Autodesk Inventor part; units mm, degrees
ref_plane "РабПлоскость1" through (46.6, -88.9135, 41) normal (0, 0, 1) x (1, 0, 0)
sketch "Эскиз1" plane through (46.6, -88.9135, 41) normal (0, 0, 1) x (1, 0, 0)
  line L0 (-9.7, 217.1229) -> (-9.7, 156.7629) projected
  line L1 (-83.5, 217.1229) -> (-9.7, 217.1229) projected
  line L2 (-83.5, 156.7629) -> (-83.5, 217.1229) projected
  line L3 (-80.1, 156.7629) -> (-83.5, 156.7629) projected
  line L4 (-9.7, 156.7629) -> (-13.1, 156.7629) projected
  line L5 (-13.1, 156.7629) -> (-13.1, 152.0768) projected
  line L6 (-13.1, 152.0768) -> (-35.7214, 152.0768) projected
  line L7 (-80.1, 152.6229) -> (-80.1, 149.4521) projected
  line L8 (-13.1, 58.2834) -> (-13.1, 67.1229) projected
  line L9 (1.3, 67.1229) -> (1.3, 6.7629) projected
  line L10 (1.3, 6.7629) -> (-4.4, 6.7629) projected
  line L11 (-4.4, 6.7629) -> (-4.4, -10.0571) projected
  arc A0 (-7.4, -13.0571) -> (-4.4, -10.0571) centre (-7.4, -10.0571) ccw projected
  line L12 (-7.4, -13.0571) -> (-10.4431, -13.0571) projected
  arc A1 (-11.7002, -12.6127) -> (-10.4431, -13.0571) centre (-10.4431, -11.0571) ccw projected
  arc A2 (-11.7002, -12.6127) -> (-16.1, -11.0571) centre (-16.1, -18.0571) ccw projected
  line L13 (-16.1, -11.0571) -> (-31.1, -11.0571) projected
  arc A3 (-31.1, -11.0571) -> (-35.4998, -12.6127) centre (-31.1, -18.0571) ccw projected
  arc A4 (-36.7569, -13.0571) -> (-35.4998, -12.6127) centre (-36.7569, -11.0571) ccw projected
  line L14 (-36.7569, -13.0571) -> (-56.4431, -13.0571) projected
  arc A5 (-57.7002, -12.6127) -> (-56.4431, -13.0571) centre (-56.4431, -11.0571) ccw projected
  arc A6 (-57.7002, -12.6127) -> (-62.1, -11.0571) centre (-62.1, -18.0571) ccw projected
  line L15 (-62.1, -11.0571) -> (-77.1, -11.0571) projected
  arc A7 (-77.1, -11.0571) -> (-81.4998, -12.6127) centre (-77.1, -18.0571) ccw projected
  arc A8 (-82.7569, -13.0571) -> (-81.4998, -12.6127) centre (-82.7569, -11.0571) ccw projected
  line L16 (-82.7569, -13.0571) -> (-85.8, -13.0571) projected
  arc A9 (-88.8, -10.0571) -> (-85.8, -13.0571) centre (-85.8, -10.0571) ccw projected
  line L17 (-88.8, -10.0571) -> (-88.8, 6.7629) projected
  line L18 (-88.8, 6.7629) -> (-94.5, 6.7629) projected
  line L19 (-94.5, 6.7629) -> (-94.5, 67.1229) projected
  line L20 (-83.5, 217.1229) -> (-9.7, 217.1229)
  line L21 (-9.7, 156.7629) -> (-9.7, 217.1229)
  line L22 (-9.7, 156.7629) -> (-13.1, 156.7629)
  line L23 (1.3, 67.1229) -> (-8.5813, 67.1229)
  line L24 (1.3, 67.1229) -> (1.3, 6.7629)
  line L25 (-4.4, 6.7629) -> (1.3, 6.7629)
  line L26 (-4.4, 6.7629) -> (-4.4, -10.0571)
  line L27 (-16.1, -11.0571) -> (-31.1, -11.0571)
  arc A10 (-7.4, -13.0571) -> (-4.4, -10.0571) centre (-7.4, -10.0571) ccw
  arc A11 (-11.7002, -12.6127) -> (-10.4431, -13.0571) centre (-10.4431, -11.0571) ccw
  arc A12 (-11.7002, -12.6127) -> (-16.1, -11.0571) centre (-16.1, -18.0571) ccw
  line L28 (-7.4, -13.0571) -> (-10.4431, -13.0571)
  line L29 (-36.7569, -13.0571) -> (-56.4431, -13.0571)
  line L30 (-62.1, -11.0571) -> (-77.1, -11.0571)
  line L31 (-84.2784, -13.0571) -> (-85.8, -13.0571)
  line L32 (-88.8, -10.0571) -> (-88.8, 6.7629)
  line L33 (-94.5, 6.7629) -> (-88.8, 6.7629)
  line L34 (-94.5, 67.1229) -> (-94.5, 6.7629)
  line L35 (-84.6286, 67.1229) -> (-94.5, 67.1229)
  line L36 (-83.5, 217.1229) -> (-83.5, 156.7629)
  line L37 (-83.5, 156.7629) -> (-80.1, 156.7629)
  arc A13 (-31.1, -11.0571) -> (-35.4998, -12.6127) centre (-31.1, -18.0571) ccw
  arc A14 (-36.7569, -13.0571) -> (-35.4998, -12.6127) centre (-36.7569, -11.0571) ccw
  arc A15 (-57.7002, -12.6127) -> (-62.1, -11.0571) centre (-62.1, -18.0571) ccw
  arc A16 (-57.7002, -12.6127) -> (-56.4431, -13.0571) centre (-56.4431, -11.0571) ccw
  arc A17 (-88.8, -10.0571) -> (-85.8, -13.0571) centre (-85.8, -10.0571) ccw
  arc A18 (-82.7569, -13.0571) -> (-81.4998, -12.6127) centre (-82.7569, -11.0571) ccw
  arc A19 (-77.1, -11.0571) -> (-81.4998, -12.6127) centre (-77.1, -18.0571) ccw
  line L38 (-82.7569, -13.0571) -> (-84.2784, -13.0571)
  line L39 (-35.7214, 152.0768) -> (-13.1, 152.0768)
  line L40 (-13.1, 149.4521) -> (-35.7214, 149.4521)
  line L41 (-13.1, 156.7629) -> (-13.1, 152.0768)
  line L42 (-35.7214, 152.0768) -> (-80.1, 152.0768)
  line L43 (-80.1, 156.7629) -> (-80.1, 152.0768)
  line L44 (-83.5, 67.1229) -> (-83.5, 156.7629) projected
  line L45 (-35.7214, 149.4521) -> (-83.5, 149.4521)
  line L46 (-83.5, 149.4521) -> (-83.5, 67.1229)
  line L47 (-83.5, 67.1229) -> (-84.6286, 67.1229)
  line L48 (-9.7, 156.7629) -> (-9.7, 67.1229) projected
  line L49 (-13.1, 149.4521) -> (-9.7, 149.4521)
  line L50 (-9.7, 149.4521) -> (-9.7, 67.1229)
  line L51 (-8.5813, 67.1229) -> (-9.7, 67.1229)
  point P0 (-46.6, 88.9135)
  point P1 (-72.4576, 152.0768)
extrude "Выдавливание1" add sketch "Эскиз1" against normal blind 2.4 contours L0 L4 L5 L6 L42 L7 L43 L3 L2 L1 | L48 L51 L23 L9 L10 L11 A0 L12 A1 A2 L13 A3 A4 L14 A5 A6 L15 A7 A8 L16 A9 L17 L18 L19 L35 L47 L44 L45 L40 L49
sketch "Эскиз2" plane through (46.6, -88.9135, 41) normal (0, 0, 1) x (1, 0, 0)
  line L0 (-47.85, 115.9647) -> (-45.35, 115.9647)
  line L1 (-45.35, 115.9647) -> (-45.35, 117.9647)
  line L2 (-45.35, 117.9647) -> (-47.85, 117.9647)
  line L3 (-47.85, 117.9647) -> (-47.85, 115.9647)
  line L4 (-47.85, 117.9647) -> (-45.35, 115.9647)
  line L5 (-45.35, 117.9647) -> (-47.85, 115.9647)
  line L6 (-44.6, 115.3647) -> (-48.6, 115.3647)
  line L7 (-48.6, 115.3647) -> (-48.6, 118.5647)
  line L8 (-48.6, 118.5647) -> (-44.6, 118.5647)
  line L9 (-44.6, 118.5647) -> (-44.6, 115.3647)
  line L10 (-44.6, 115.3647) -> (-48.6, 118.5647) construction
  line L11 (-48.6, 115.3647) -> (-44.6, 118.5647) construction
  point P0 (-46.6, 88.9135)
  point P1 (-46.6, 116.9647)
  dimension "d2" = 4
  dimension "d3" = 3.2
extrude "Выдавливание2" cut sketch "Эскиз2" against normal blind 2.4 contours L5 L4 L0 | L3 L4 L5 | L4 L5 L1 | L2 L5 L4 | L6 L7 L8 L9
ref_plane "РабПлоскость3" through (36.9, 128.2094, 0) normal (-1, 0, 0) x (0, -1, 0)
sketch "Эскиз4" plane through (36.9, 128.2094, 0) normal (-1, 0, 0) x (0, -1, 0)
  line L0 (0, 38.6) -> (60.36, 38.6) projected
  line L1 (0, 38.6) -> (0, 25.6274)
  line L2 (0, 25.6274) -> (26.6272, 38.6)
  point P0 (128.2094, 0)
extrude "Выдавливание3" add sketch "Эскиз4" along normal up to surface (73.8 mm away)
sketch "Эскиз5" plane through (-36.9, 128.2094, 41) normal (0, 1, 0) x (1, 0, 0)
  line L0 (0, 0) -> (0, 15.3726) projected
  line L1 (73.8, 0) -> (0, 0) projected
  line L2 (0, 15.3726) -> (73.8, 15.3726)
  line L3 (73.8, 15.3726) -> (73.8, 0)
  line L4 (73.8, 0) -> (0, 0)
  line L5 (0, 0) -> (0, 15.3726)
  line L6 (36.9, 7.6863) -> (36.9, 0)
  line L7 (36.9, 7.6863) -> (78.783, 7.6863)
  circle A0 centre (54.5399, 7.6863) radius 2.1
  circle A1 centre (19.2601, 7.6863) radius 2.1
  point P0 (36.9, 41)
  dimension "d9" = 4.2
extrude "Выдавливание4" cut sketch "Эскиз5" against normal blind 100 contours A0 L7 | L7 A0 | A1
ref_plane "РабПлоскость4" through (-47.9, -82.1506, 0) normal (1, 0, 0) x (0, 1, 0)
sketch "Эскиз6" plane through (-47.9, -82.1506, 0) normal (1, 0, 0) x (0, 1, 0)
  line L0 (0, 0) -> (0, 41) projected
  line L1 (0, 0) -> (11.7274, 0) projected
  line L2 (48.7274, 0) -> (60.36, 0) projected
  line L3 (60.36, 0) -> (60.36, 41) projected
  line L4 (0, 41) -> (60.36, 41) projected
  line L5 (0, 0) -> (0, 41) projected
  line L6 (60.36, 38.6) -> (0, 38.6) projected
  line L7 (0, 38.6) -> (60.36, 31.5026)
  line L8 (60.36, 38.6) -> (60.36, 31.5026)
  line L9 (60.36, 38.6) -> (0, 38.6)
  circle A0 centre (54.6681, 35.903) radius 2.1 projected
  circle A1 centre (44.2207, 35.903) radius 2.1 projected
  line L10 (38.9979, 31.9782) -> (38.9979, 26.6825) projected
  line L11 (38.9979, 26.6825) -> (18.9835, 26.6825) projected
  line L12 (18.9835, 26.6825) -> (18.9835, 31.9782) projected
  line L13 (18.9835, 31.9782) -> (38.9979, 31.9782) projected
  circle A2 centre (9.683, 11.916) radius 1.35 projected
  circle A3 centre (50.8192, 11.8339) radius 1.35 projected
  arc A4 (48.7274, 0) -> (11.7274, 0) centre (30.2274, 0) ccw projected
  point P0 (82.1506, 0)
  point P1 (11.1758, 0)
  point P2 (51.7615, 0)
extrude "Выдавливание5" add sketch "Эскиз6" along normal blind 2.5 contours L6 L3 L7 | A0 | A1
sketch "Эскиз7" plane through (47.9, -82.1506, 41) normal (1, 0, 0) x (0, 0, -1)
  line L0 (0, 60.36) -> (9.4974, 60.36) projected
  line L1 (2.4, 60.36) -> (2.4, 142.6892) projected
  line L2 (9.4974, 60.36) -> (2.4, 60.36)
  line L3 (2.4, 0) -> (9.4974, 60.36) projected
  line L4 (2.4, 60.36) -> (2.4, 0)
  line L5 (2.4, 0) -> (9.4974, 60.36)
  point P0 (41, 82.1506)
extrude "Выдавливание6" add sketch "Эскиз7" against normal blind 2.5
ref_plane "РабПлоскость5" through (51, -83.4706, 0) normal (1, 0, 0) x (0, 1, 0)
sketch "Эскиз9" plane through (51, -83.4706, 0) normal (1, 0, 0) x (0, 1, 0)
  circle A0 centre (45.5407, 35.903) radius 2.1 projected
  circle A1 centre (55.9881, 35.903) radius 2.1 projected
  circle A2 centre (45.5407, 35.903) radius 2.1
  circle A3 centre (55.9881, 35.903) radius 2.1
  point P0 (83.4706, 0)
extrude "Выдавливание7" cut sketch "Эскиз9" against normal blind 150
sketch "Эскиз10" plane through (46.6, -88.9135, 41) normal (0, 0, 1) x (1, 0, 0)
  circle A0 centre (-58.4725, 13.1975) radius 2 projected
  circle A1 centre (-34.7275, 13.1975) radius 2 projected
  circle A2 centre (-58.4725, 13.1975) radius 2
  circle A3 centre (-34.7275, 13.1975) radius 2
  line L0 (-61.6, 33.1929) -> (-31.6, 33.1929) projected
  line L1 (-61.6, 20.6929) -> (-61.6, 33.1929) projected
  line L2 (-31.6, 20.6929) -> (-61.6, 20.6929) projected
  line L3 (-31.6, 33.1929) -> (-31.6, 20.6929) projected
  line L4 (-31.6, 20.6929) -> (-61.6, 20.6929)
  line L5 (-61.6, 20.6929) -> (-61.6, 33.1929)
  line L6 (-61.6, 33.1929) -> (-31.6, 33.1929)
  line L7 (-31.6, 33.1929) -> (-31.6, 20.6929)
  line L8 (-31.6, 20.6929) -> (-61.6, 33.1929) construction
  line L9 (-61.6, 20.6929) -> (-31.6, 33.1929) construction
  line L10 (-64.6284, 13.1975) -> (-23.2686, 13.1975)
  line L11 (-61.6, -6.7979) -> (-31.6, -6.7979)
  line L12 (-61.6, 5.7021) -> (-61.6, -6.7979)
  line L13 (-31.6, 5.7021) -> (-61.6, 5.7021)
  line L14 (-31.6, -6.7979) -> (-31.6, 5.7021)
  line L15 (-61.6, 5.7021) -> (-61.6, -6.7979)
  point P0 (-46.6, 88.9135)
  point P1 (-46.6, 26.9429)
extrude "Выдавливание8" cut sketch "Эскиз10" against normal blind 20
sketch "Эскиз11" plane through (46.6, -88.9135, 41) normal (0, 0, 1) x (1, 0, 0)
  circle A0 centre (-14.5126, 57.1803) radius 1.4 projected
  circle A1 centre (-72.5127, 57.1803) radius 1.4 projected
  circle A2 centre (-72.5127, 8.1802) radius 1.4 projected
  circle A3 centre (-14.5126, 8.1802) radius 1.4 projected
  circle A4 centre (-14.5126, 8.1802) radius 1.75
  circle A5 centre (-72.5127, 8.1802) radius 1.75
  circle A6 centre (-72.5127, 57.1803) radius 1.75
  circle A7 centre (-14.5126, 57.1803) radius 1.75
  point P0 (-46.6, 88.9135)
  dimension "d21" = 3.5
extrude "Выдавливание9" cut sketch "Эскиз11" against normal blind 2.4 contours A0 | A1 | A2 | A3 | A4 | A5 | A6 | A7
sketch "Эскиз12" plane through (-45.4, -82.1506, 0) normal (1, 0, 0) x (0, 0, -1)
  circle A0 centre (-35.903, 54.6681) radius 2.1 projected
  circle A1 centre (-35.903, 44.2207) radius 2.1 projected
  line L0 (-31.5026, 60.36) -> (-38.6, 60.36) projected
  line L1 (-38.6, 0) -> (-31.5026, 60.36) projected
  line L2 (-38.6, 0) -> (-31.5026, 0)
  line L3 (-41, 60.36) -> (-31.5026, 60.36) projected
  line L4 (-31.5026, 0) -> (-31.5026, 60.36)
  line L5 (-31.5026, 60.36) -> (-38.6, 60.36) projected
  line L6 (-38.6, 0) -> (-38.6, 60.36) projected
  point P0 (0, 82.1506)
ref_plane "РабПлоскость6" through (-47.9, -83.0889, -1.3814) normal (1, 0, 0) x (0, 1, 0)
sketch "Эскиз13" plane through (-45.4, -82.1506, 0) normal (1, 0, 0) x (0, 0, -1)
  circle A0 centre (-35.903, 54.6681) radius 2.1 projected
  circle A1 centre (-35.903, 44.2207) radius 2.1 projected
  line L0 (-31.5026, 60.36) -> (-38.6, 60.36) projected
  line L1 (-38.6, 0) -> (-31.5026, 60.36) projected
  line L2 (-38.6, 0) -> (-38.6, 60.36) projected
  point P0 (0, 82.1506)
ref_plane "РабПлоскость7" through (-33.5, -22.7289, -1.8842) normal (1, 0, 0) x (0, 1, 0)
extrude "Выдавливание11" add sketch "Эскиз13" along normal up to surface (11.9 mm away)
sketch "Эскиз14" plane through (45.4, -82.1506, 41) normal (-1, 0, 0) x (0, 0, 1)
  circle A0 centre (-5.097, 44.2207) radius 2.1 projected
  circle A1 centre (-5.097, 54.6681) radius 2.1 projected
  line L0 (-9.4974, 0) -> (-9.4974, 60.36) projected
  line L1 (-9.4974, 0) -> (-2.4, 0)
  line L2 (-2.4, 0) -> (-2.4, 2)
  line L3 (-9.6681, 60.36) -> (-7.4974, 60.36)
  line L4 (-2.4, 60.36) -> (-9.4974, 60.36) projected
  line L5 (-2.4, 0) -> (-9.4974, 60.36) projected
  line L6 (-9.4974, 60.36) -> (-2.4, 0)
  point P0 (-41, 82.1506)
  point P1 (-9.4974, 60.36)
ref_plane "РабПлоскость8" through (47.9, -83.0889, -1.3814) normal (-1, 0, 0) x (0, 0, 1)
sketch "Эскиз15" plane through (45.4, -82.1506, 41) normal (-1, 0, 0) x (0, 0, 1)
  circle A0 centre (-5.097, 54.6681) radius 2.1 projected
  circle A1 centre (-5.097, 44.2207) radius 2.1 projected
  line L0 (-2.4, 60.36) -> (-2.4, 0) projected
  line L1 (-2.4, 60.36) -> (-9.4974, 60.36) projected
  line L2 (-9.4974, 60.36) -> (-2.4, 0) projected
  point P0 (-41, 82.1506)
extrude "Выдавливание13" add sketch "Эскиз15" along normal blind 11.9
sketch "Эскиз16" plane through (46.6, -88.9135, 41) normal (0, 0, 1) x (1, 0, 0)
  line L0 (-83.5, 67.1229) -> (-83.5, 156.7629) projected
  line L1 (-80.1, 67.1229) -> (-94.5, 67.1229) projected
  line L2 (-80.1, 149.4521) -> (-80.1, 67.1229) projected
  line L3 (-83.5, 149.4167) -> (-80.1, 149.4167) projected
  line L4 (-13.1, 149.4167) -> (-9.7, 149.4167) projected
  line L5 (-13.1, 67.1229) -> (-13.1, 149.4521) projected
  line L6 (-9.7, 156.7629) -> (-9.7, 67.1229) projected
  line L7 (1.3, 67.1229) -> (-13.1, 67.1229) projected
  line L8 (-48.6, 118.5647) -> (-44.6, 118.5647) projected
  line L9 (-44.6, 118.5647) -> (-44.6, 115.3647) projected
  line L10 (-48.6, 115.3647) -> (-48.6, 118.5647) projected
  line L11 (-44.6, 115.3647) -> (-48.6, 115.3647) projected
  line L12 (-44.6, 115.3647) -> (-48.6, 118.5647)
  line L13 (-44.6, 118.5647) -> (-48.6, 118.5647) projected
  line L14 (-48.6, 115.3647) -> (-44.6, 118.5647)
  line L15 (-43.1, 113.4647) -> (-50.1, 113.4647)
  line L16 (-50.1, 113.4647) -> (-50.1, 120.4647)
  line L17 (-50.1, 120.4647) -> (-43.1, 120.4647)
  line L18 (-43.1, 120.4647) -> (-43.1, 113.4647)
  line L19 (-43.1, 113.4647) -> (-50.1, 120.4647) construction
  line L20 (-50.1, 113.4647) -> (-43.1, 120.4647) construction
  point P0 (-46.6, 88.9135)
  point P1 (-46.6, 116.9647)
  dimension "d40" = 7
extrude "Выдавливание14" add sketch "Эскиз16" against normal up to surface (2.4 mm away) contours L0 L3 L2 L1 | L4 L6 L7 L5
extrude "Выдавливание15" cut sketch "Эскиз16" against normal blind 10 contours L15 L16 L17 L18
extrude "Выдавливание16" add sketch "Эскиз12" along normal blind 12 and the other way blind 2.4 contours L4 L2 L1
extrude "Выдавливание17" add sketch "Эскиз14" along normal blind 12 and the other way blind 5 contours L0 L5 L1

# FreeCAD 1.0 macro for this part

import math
import FreeCAD as App
import Part
import Sketcher
Q = App.Units.Quantity

doc = App.newDocument("Part")
body = doc.addObject("PartDesign::Body", "Body")
body.AllowCompound = True

sketch1 = doc.addObject("Sketcher::SketchObject", "Sketch")
body.addObject(sketch1)
sketch1.AttachmentSupport = (doc.XY_Plane, [""])
sketch1.MapMode = "FlatFace"
sketch1.AttachmentOffset = App.Placement(App.Vector(0, 0, 41), App.Rotation())
sketch1.addGeometry([
    Part.LineSegment(App.Vector(36.9, 67.8, 0), App.Vector(36.9, 128.2, 0)),
    Part.LineSegment(App.Vector(36.9, 128.2, 0), App.Vector(-36.9, 128.2, 0)),
    Part.LineSegment(App.Vector(-36.9, 128.2, 0), App.Vector(-36.9, 67.8, 0)),
    Part.LineSegment(App.Vector(-36.9, 67.8, 0), App.Vector(-33.5, 67.8, 0)),
    Part.LineSegment(App.Vector(-33.5, 67.8, 0), App.Vector(-33.5, 63.2, 0)),
    Part.LineSegment(App.Vector(-33.5, 63.2, 0), App.Vector(33.5, 63.2, 0)),
    Part.LineSegment(App.Vector(33.5, 63.2, 0), App.Vector(33.5, 67.8, 0)),
    Part.LineSegment(App.Vector(33.5, 67.8, 0), App.Vector(36.9, 67.8, 0)),
    Part.LineSegment(App.Vector(36.9, -21.8, 0), App.Vector(36.9, 60.5, 0)),
    Part.LineSegment(App.Vector(36.9, 60.5, 0), App.Vector(-36.9, 60.5, 0)),
    Part.LineSegment(App.Vector(-36.9, 60.5, 0), App.Vector(-36.9, -21.8, 0)),
    Part.LineSegment(App.Vector(-36.9, -21.8, 0), App.Vector(-47.9, -21.8, 0)),
    Part.LineSegment(App.Vector(-47.9, -21.8, 0), App.Vector(-47.9, -82.2, 0)),
    Part.LineSegment(App.Vector(-47.9, -82.2, 0), App.Vector(-42.2, -82.2, 0)),
    Part.LineSegment(App.Vector(-42.2, -82.2, 0), App.Vector(-42.2, -99, 0)),
    Part.ArcOfCircle(Part.Circle(App.Vector(-39.2, -99, 0), App.Vector(0, 0, 1), 3), math.radians(180), math.radians(270)),
    Part.LineSegment(App.Vector(-39.2, -102, 0), App.Vector(-36.2, -102, 0)),
    Part.ArcOfCircle(Part.Circle(App.Vector(-36.2, -100, 0), App.Vector(0, 0, 1), 2), math.radians(-90), math.radians(-51)),
    Part.ArcOfCircle(Part.Circle(App.Vector(-30.5, -107, 0), App.Vector(0, 0, 1), 7), math.radians(90), math.radians(129)),
    Part.LineSegment(App.Vector(-30.5, -100, 0), App.Vector(-15.5, -100, 0)),
    Part.ArcOfCircle(Part.Circle(App.Vector(-15.5, -107, 0), App.Vector(0, 0, 1), 7), math.radians(51), math.radians(90)),
    Part.ArcOfCircle(Part.Circle(App.Vector(-9.8, -100, 0), App.Vector(0, 0, 1), 2), math.radians(-129), math.radians(-90)),
    Part.LineSegment(App.Vector(-9.8, -102, 0), App.Vector(9.8, -102, 0)),
    Part.ArcOfCircle(Part.Circle(App.Vector(9.8, -100, 0), App.Vector(0, 0, 1), 2), math.radians(-90), math.radians(-51)),
    Part.ArcOfCircle(Part.Circle(App.Vector(15.5, -107, 0), App.Vector(0, 0, 1), 7), math.radians(90), math.radians(129)),
    Part.LineSegment(App.Vector(15.5, -100, 0), App.Vector(30.5, -100, 0)),
    Part.ArcOfCircle(Part.Circle(App.Vector(30.5, -107, 0), App.Vector(0, 0, 1), 7), math.radians(51), math.radians(90)),
    Part.ArcOfCircle(Part.Circle(App.Vector(36.2, -100, 0), App.Vector(0, 0, 1), 2), math.radians(-129), math.radians(-90)),
    Part.LineSegment(App.Vector(36.2, -102, 0), App.Vector(39.2, -102, 0)),
    Part.ArcOfCircle(Part.Circle(App.Vector(39.2, -99, 0), App.Vector(0, 0, 1), 3), math.radians(-90), math.radians(0)),
    Part.LineSegment(App.Vector(42.2, -99, 0), App.Vector(42.2, -82.2, 0)),
    Part.LineSegment(App.Vector(42.2, -82.2, 0), App.Vector(47.9, -82.2, 0)),
    Part.LineSegment(App.Vector(47.9, -82.2, 0), App.Vector(47.9, -21.8, 0)),
    Part.LineSegment(App.Vector(47.9, -21.8, 0), App.Vector(36.9, -21.8, 0)),
], False)
sketch1.addConstraint([
    Sketcher.Constraint("Coincident", 0, 2, 1, 1),
    Sketcher.Constraint("Coincident", 1, 2, 2, 1),
    Sketcher.Constraint("Coincident", 2, 2, 3, 1),
    Sketcher.Constraint("Coincident", 3, 2, 4, 1),
    Sketcher.Constraint("Coincident", 4, 2, 5, 1),
    Sketcher.Constraint("Coincident", 5, 2, 6, 1),
    Sketcher.Constraint("Coincident", 6, 2, 7, 1),
    Sketcher.Constraint("Coincident", 7, 2, 0, 1),
    Sketcher.Constraint("Coincident", 8, 2, 9, 1),
    Sketcher.Constraint("Coincident", 9, 2, 10, 1),
    Sketcher.Constraint("Coincident", 10, 2, 11, 1),
    Sketcher.Constraint("Coincident", 11, 2, 12, 1),
    Sketcher.Constraint("Coincident", 12, 2, 13, 1),
    Sketcher.Constraint("Coincident", 13, 2, 14, 1),
    Sketcher.Constraint("Tangent", 14, 2, 15, 1),
    Sketcher.Constraint("Tangent", 15, 2, 16, 1),
    Sketcher.Constraint("Tangent", 16, 2, 17, 1),
    Sketcher.Constraint("Tangent", 17, 2, 18, 2),
    Sketcher.Constraint("Tangent", 18, 1, 19, 1),
    Sketcher.Constraint("Tangent", 19, 2, 20, 2),
    Sketcher.Constraint("Tangent", 20, 1, 21, 1),
    Sketcher.Constraint("Tangent", 21, 2, 22, 1),
    Sketcher.Constraint("Tangent", 22, 2, 23, 1),
    Sketcher.Constraint("Tangent", 23, 2, 24, 2),
    Sketcher.Constraint("Tangent", 24, 1, 25, 1),
    Sketcher.Constraint("Tangent", 25, 2, 26, 2),
    Sketcher.Constraint("Tangent", 26, 1, 27, 1),
    Sketcher.Constraint("Tangent", 27, 2, 28, 1),
    Sketcher.Constraint("Tangent", 28, 2, 29, 1),
    Sketcher.Constraint("Tangent", 29, 2, 30, 1),
    Sketcher.Constraint("Coincident", 30, 2, 31, 1),
    Sketcher.Constraint("Coincident", 31, 2, 32, 1),
    Sketcher.Constraint("Coincident", 32, 2, 33, 1),
    Sketcher.Constraint("Coincident", 33, 2, 8, 1),
    Sketcher.Constraint("Vertical", 0),
    Sketcher.Constraint("Horizontal", 1),
    Sketcher.Constraint("Vertical", 2),
    Sketcher.Constraint("Horizontal", 3),
    Sketcher.Constraint("Vertical", 4),
    Sketcher.Constraint("Horizontal", 5),
    Sketcher.Constraint("Vertical", 6),
    Sketcher.Constraint("Horizontal", 7),
    Sketcher.Constraint("Vertical", 8),
    Sketcher.Constraint("Horizontal", 9),
    Sketcher.Constraint("Vertical", 10),
    Sketcher.Constraint("Horizontal", 11),
    Sketcher.Constraint("Vertical", 12),
    Sketcher.Constraint("Horizontal", 13),
    Sketcher.Constraint("Vertical", 14),
    Sketcher.Constraint("Horizontal", 16),
    Sketcher.Constraint("Horizontal", 19),
    Sketcher.Constraint("Horizontal", 22),
    Sketcher.Constraint("Horizontal", 25),
    Sketcher.Constraint("Horizontal", 28),
    Sketcher.Constraint("Vertical", 30),
    Sketcher.Constraint("Horizontal", 31),
    Sketcher.Constraint("Vertical", 32),
    Sketcher.Constraint("Horizontal", 33),
    Sketcher.Constraint("Equal", 18, 20),
    Sketcher.Constraint("Equal", 17, 21),
    Sketcher.Constraint("Equal", 21, 23),
    Sketcher.Constraint("Equal", 20, 24),
    Sketcher.Constraint("Equal", 24, 26),
    Sketcher.Constraint("Equal", 23, 27),
    Sketcher.Constraint("Equal", 15, 29),
    Sketcher.Constraint("Symmetric", 20, 3, 24, 3, -2),
    Sketcher.Constraint("Symmetric", 17, 3, 27, 3, -2),
    Sketcher.Constraint("Symmetric", 3, 2, 6, 2, -2),
    Sketcher.Constraint("Symmetric", 13, 2, 30, 2, -2),
    Sketcher.Constraint("Symmetric", 11, 2, 32, 2, -2),
    Sketcher.Constraint("Horizontal", 17, 3, 21, 3),
    Sketcher.Constraint("Horizontal", 27, 3, 18, 1),
    Sketcher.Constraint("Vertical", 7, 2, 8, 2),
    Sketcher.Constraint("Vertical", 2, 2, 9, 2),
    Sketcher.Constraint("Equal", 3, 7),
    Sketcher.Constraint("Equal", 2, 12),
    Sketcher.Constraint("Radius", 15, Q("3 mm")),
    Sketcher.Constraint("Radius", 17, Q("2 mm")),
    Sketcher.Constraint("Radius", 18, Q("7 mm")),
    Sketcher.Constraint("DistanceX", 5, 1, 5, 2, Q("67 mm")),
    Sketcher.Constraint("DistanceX", 11, 2, 11, 1, Q("11 mm")),
    Sketcher.Constraint("DistanceX", 19, 1, 19, 2, Q("15 mm")),
    Sketcher.Constraint("DistanceX", 1, 2, 1, 1, Q("73.8 mm")),
    Sketcher.Constraint("DistanceX", 13, 1, 13, 2, Q("5.7 mm")),
    Sketcher.Constraint("DistanceX", 17, 3, 23, 3, Q("46 mm")),
    Sketcher.Constraint("DistanceY", 0, 1, 0, 2, Q("60.36 mm")),
    Sketcher.Constraint("DistanceY", 14, 2, 14, 1, Q("16.82 mm")),
    Sketcher.Constraint("DistanceY", 4, 2, 4, 1, Q("4.686 mm")),
    Sketcher.Constraint("DistanceY", 29, 3, 0, 2, Q("227.18 mm")),
    Sketcher.Constraint("DistanceY", 8, 1, 8, 2, Q("82.3292 mm")),
    Sketcher.Constraint("DistanceY", 15, 3, -1, 1, Q("98.9706 mm")),
])
pad1 = doc.addObject("PartDesign::Pad", "Pad")
body.addObject(pad1)
pad1.Profile = sketch1
pad1.Length = 2.4
pad1.Reversed = True

sketch2 = doc.addObject("Sketcher::SketchObject", "Sketch001")
body.addObject(sketch2)
sketch2.AttachmentSupport = (doc.XY_Plane, [""])
sketch2.MapMode = "FlatFace"
sketch2.AttachmentOffset = App.Placement(App.Vector(0, 0, 41), App.Rotation())
sketch2.addGeometry([
    Part.LineSegment(App.Vector(-2, 26.5, 0), App.Vector(2, 26.5, 0)),
    Part.LineSegment(App.Vector(2, 26.5, 0), App.Vector(2, 29.7, 0)),
    Part.LineSegment(App.Vector(2, 29.7, 0), App.Vector(-2, 29.7, 0)),
    Part.LineSegment(App.Vector(-2, 29.7, 0), App.Vector(-2, 26.5, 0)),
], False)
sketch2.addConstraint([
    Sketcher.Constraint("Coincident", 0, 2, 1, 1),
    Sketcher.Constraint("Coincident", 1, 2, 2, 1),
    Sketcher.Constraint("Coincident", 2, 2, 3, 1),
    Sketcher.Constraint("Coincident", 3, 2, 0, 1),
    Sketcher.Constraint("Horizontal", 0),
    Sketcher.Constraint("Vertical", 1),
    Sketcher.Constraint("Horizontal", 2),
    Sketcher.Constraint("Vertical", 3),
    Sketcher.Constraint("DistanceX", 0, 1, 0, 2, Q("4 mm")),
    Sketcher.Constraint("DistanceY", 1, 1, 1, 2, Q("3.2 mm")),
    Sketcher.Constraint("DistanceX", -1, 1, 0, 2, Q("2 mm")),
    Sketcher.Constraint("DistanceY", -1, 1, 0, 2, Q("26.4512 mm")),
])
pocket1 = doc.addObject("PartDesign::Pocket", "Pocket")
body.addObject(pocket1)
pocket1.Profile = sketch2
pocket1.Length = 2.4

sketch3 = doc.addObject("Sketcher::SketchObject", "Sketch002")
body.addObject(sketch3)
sketch3.AttachmentSupport = (doc.YZ_Plane, [""])
sketch3.MapMode = "FlatFace"
sketch3.AttachmentOffset = App.Placement(App.Vector(0, 0, 36.9), App.Rotation())
sketch3.addGeometry([
    Part.LineSegment(App.Vector(102, 39, 0), App.Vector(128, 39, 0)),
    Part.LineSegment(App.Vector(128, 39, 0), App.Vector(128, 26, 0)),
    Part.LineSegment(App.Vector(128, 26, 0), App.Vector(102, 39, 0)),
], False)
sketch3.addConstraint([
    Sketcher.Constraint("Coincident", 0, 2, 1, 1),
    Sketcher.Constraint("Coincident", 1, 2, 2, 1),
    Sketcher.Constraint("Coincident", 2, 2, 0, 1),
    Sketcher.Constraint("Horizontal", 0),
    Sketcher.Constraint("Vertical", 1),
    Sketcher.Constraint("DistanceY", -1, 1, 0, 2, Q("38.6 mm")),
    Sketcher.Constraint("DistanceX", 0, 1, 0, 2, Q("26.6272 mm")),
    Sketcher.Constraint("DistanceY", 1, 2, 1, 1, Q("12.9726 mm")),
    Sketcher.Constraint("DistanceX", -1, 1, 0, 2, Q("128.2094 mm")),
])
pad2 = doc.addObject("PartDesign::Pad", "Pad001")
body.addObject(pad2)
pad2.Profile = sketch3
pad2.Length = 73.8
pad2.Reversed = True

sketch4 = doc.addObject("Sketcher::SketchObject", "Sketch003")
body.addObject(sketch4)
sketch4.AttachmentSupport = (doc.XZ_Plane, [""])
sketch4.MapMode = "FlatFace"
sketch4.AttachmentOffset = App.Placement(App.Vector(0, 0, -128.2094), App.Rotation())
sketch4.addGeometry([
    Part.Circle(App.Vector(17.6, 33.3, 0), App.Vector(0, 0, 1), 2.1),
    Part.Circle(App.Vector(-17.6, 33.3, 0), App.Vector(0, 0, 1), 2.1),
], False)
sketch4.addConstraint([
    Sketcher.Constraint("Equal", 0, 1),
    Sketcher.Constraint("Symmetric", 0, 3, 1, 3, -2),
    Sketcher.Constraint("Diameter", 0, Q("4.2 mm")),
    Sketcher.Constraint("DistanceX", -1, 1, 0, 3, Q("17.64 mm")),
    Sketcher.Constraint("DistanceY", -1, 1, 0, 3, Q("33.3137 mm")),
])
pocket2 = doc.addObject("PartDesign::Pocket", "Pocket001")
body.addObject(pocket2)
pocket2.Profile = sketch4
pocket2.Length = 100
pocket2.Reversed = True

sketch5 = doc.addObject("Sketcher::SketchObject", "Sketch004")
body.addObject(sketch5)
sketch5.AttachmentSupport = (doc.YZ_Plane, [""])
sketch5.MapMode = "FlatFace"
sketch5.AttachmentOffset = App.Placement(App.Vector(0, 0, -47.9), App.Rotation())
sketch5.addGeometry([
    Part.LineSegment(App.Vector(-22, 39, 0), App.Vector(-82, 39, 0)),
    Part.LineSegment(App.Vector(-82, 39, 0), App.Vector(-22, 32, 0)),
    Part.LineSegment(App.Vector(-22, 32, 0), App.Vector(-22, 39, 0)),
], False)
sketch5.addConstraint([
    Sketcher.Constraint("Coincident", 0, 2, 1, 1),
    Sketcher.Constraint("Coincident", 1, 2, 2, 1),
    Sketcher.Constraint("Coincident", 2, 2, 0, 1),
    Sketcher.Constraint("Horizontal", 0),
    Sketcher.Constraint("Vertical", 2),
    Sketcher.Constraint("DistanceX", 0, 2, 0, 1, Q("60.36 mm")),
    Sketcher.Constraint("DistanceY", -1, 1, 0, 2, Q("38.6 mm")),
    Sketcher.Constraint("DistanceY", 2, 1, 2, 2, Q("7.0974 mm")),
    Sketcher.Constraint("DistanceX", 0, 2, -1, 1, Q("82.1506 mm")),
])
pad3 = doc.addObject("PartDesign::Pad", "Pad002")
body.addObject(pad3)
pad3.Profile = sketch5
pad3.Length = 2.5

sketch6 = doc.addObject("Sketcher::SketchObject", "Sketch005")
body.addObject(sketch6)
sketch6.AttachmentSupport = (doc.YZ_Plane, [""])
sketch6.MapMode = "FlatFace"
sketch6.AttachmentOffset = App.Placement(App.Vector(0, 0, 47.9), App.Rotation())
sketch6.addGeometry([
    Part.LineSegment(App.Vector(-22, 32, 0), App.Vector(-22, 39, 0)),
    Part.LineSegment(App.Vector(-22, 39, 0), App.Vector(-82, 39, 0)),
    Part.LineSegment(App.Vector(-82, 39, 0), App.Vector(-22, 32, 0)),
], False)
sketch6.addConstraint([
    Sketcher.Constraint("Coincident", 0, 2, 1, 1),
    Sketcher.Constraint("Coincident", 1, 2, 2, 1),
    Sketcher.Constraint("Coincident", 2, 2, 0, 1),
    Sketcher.Constraint("Vertical", 0),
    Sketcher.Constraint("Horizontal", 1),
    Sketcher.Constraint("DistanceX", 1, 2, 1, 1, Q("60.36 mm")),
    Sketcher.Constraint("DistanceY", -1, 1, 0, 2, Q("38.6 mm")),
    Sketcher.Constraint("DistanceY", 0, 1, 0, 2, Q("7.0974 mm")),
    Sketcher.Constraint("DistanceX", 0, 2, -1, 1, Q("21.7906 mm")),
])
pad4 = doc.addObject("PartDesign::Pad", "Pad003")
body.addObject(pad4)
pad4.Profile = sketch6
pad4.Length = 2.5
pad4.Reversed = True

sketch7 = doc.addObject("Sketcher::SketchObject", "Sketch006")
body.addObject(sketch7)
sketch7.AttachmentSupport = (doc.YZ_Plane, [""])
sketch7.MapMode = "FlatFace"
sketch7.AttachmentOffset = App.Placement(App.Vector(0, 0, 51), App.Rotation())
sketch7.addGeometry([
    Part.Circle(App.Vector(-37.9, 35.9, 0), App.Vector(0, 0, 1), 2.1),
    Part.Circle(App.Vector(-27.5, 35.9, 0), App.Vector(0, 0, 1), 2.1),
], False)
sketch7.addConstraint([
    Sketcher.Constraint("Equal", 0, 1),
    Sketcher.Constraint("Horizontal", 0, 3, 1, 3),
    Sketcher.Constraint("Diameter", 0, Q("4.2 mm")),
    Sketcher.Constraint("DistanceX", 0, 3, -1, 1, Q("37.93 mm")),
    Sketcher.Constraint("DistanceY", -1, 1, 0, 3, Q("35.903 mm")),
    Sketcher.Constraint("DistanceX", 1, 3, -1, 1, Q("27.4825 mm")),
])
pocket3 = doc.addObject("PartDesign::Pocket", "Pocket002")
body.addObject(pocket3)
pocket3.Profile = sketch7
pocket3.Length = 150

sketch8 = doc.addObject("Sketcher::SketchObject", "Sketch007")
body.addObject(sketch8)
sketch8.AttachmentSupport = (doc.XY_Plane, [""])
sketch8.MapMode = "FlatFace"
sketch8.AttachmentOffset = App.Placement(App.Vector(0, 0, 41), App.Rotation())
sketch8.addGeometry([
    Part.Circle(App.Vector(-11.9, -75.7, 0), App.Vector(0, 0, 1), 2),
    Part.Circle(App.Vector(11.9, -75.7, 0), App.Vector(0, 0, 1), 2),
    Part.LineSegment(App.Vector(15, -55.7, 0), App.Vector(-15, -55.7, 0)),
    Part.LineSegment(App.Vector(-15, -55.7, 0), App.Vector(-15, -68.2, 0)),
    Part.LineSegment(App.Vector(-15, -68.2, 0), App.Vector(15, -68.2, 0)),
    Part.LineSegment(App.Vector(15, -68.2, 0), App.Vector(15, -55.7, 0)),
    Part.LineSegment(App.Vector(-15, -83.2, 0), App.Vector(-15, -95.7, 0)),
    Part.LineSegment(App.Vector(-15, -95.7, 0), App.Vector(15, -95.7, 0)),
    Part.LineSegment(App.Vector(15, -95.7, 0), App.Vector(15, -83.2, 0)),
    Part.LineSegment(App.Vector(15, -83.2, 0), App.Vector(-15, -83.2, 0)),
], False)
sketch8.addConstraint([
    Sketcher.Constraint("Coincident", 2, 2, 3, 1),
    Sketcher.Constraint("Coincident", 3, 2, 4, 1),
    Sketcher.Constraint("Coincident", 4, 2, 5, 1),
    Sketcher.Constraint("Coincident", 5, 2, 2, 1),
    Sketcher.Constraint("Coincident", 6, 2, 7, 1),
    Sketcher.Constraint("Coincident", 7, 2, 8, 1),
    Sketcher.Constraint("Coincident", 8, 2, 9, 1),
    Sketcher.Constraint("Coincident", 9, 2, 6, 1),
    Sketcher.Constraint("Horizontal", 2),
    Sketcher.Constraint("Vertical", 3),
    Sketcher.Constraint("Horizontal", 4),
    Sketcher.Constraint("Vertical", 5),
    Sketcher.Constraint("Vertical", 6),
    Sketcher.Constraint("Horizontal", 7),
    Sketcher.Constraint("Vertical", 8),
    Sketcher.Constraint("Horizontal", 9),
    Sketcher.Constraint("Equal", 0, 1),
    Sketcher.Constraint("Symmetric", 0, 3, 1, 3, -2),
    Sketcher.Constraint("Vertical", 3, 2, 6, 2),
    Sketcher.Constraint("Vertical", 5, 2, 7, 2),
    Sketcher.Constraint("Equal", 5, 6),
    Sketcher.Constraint("Diameter", 0, Q("4 mm")),
    Sketcher.Constraint("DistanceX", 2, 2, 2, 1, Q("30 mm")),
    Sketcher.Constraint("DistanceY", 3, 2, 3, 1, Q("12.5 mm")),
    Sketcher.Constraint("DistanceX", 2, 2, -1, 1, Q("15 mm")),
    Sketcher.Constraint("DistanceY", 0, 3, -1, 1, Q("75.716 mm")),
    Sketcher.Constraint("DistanceX", 0, 3, 1, 3, Q("23.745 mm")),
    Sketcher.Constraint("DistanceY", 2, 2, -1, 1, Q("55.7206 mm")),
    Sketcher.Constraint("DistanceY", 6, 2, -1, 1, Q("95.7114 mm")),
])
pocket4 = doc.addObject("PartDesign::Pocket", "Pocket003")
body.addObject(pocket4)
pocket4.Profile = sketch8
pocket4.Length = 20

sketch9 = doc.addObject("Sketcher::SketchObject", "Sketch008")
body.addObject(sketch9)
sketch9.AttachmentSupport = (doc.XY_Plane, [""])
sketch9.MapMode = "FlatFace"
sketch9.AttachmentOffset = App.Placement(App.Vector(0, 0, 41), App.Rotation())
sketch9.addGeometry([
    Part.Circle(App.Vector(32.1, -31.7, 0), App.Vector(0, 0, 1), 1.8),
    Part.Circle(App.Vector(-25.9, -31.7, 0), App.Vector(0, 0, 1), 1.8),
    Part.Circle(App.Vector(-25.9, -80.7, 0), App.Vector(0, 0, 1), 1.8),
    Part.Circle(App.Vector(32.1, -80.7, 0), App.Vector(0, 0, 1), 1.8),
], False)
sketch9.addConstraint([
    Sketcher.Constraint("Equal", 0, 1),
    Sketcher.Constraint("Equal", 1, 2),
    Sketcher.Constraint("Equal", 2, 3),
    Sketcher.Constraint("Horizontal", 0, 3, 1, 3),
    Sketcher.Constraint("Horizontal", 2, 3, 3, 3),
    Sketcher.Constraint("Vertical", 1, 3, 2, 3),
    Sketcher.Constraint("Vertical", 0, 3, 3, 3),
    Sketcher.Constraint("Diameter", 0, Q("3.5 mm")),
    Sketcher.Constraint("DistanceX", 1, 3, 0, 3, Q("58 mm")),
    Sketcher.Constraint("DistanceY", 2, 3, 1, 3, Q("49 mm")),
    Sketcher.Constraint("DistanceX", -1, 1, 0, 3, Q("32.0874 mm")),
    Sketcher.Constraint("DistanceY", 0, 3, -1, 1, Q("31.7332 mm")),
])
pocket5 = doc.addObject("PartDesign::Pocket", "Pocket004")
body.addObject(pocket5)
pocket5.Profile = sketch9
pocket5.Length = 2.4

sketch10 = doc.addObject("Sketcher::SketchObject", "Sketch009")
body.addObject(sketch10)
sketch10.AttachmentSupport = (doc.YZ_Plane, [""])
sketch10.MapMode = "FlatFace"
sketch10.AttachmentOffset = App.Placement(App.Vector(0, 0, -45.4), App.Rotation())
sketch10.addGeometry([
    Part.LineSegment(App.Vector(-82.2, 38.6, 0), App.Vector(-21.8, 31.5, 0)),
    Part.LineSegment(App.Vector(-21.8, 31.5, 0), App.Vector(-21.8, 38.6, 0)),
    Part.LineSegment(App.Vector(-21.8, 38.6, 0), App.Vector(-82.2, 38.6, 0)),
    Part.Circle(App.Vector(-37.9, 35.9, 0), App.Vector(0, 0, 1), 2.1),
    Part.Circle(App.Vector(-27.5, 35.9, 0), App.Vector(0, 0, 1), 2.1),
], False)
sketch10.addConstraint([
    Sketcher.Constraint("Coincident", 0, 2, 1, 1),
    Sketcher.Constraint("Coincident", 1, 2, 2, 1),
    Sketcher.Constraint("Coincident", 2, 2, 0, 1),
    Sketcher.Constraint("Vertical", 1),
    Sketcher.Constraint("Horizontal", 2),
    Sketcher.Constraint("Equal", 3, 4),
    Sketcher.Constraint("Horizontal", 3, 3, 4, 3),
    Sketcher.Constraint("Diameter", 3, Q("4.2 mm")),
    Sketcher.Constraint("DistanceX", 2, 2, 2, 1, Q("60.36 mm")),
    Sketcher.Constraint("DistanceY", -1, 1, 1, 2, Q("38.6 mm")),
    Sketcher.Constraint("DistanceX", 3, 3, -1, 1, Q("37.93 mm")),
    Sketcher.Constraint("DistanceY", 1, 1, 1, 2, Q("7.0974 mm")),
    Sketcher.Constraint("DistanceY", -1, 1, 3, 3, Q("35.903 mm")),
    Sketcher.Constraint("DistanceX", 4, 3, 0, 2, Q("5.692 mm")),
    Sketcher.Constraint("DistanceX", 4, 3, -1, 1, Q("27.4825 mm")),
])
pad5 = doc.addObject("PartDesign::Pad", "Pad004")
body.addObject(pad5)
pad5.Profile = sketch10
pad5.Length = 11.9

sketch11 = doc.addObject("Sketcher::SketchObject", "Sketch010")
body.addObject(sketch11)
sketch11.AttachmentSupport = (doc.YZ_Plane, [""])
sketch11.MapMode = "FlatFace"
sketch11.AttachmentOffset = App.Placement(App.Vector(0, 0, 45.4), App.Rotation())
sketch11.addGeometry([
    Part.LineSegment(App.Vector(-82.2, 38.6, 0), App.Vector(-21.8, 38.6, 0)),
    Part.LineSegment(App.Vector(-21.8, 38.6, 0), App.Vector(-21.8, 31.5, 0)),
    Part.LineSegment(App.Vector(-21.8, 31.5, 0), App.Vector(-82.2, 38.6, 0)),
    Part.Circle(App.Vector(-37.9, 35.9, 0), App.Vector(0, 0, 1), 2.1),
    Part.Circle(App.Vector(-27.5, 35.9, 0), App.Vector(0, 0, 1), 2.1),
], False)
sketch11.addConstraint([
    Sketcher.Constraint("Coincident", 0, 2, 1, 1),
    Sketcher.Constraint("Coincident", 1, 2, 2, 1),
    Sketcher.Constraint("Coincident", 2, 2, 0, 1),
    Sketcher.Constraint("Horizontal", 0),
    Sketcher.Constraint("Vertical", 1),
    Sketcher.Constraint("Equal", 3, 4),
    Sketcher.Constraint("Horizontal", 3, 3, 4, 3),
    Sketcher.Constraint("Diameter", 3, Q("4.2 mm")),
    Sketcher.Constraint("DistanceX", 0, 1, 0, 2, Q("60.36 mm")),
    Sketcher.Constraint("DistanceY", -1, 1, 0, 2, Q("38.6 mm")),
    Sketcher.Constraint("DistanceX", 3, 3, -1, 1, Q("37.93 mm")),
    Sketcher.Constraint("DistanceY", 1, 2, 1, 1, Q("7.0974 mm")),
    Sketcher.Constraint("DistanceY", -1, 1, 3, 3, Q("35.903 mm")),
    Sketcher.Constraint("DistanceX", 4, 3, 0, 2, Q("5.692 mm")),
    Sketcher.Constraint("DistanceX", 4, 3, -1, 1, Q("27.4825 mm")),
])
pad6 = doc.addObject("PartDesign::Pad", "Pad005")
body.addObject(pad6)
pad6.Profile = sketch11
pad6.Length = 11.9
pad6.Reversed = True

sketch12 = doc.addObject("Sketcher::SketchObject", "Sketch011")
body.addObject(sketch12)
sketch12.AttachmentSupport = (doc.XY_Plane, [""])
sketch12.MapMode = "FlatFace"
sketch12.AttachmentOffset = App.Placement(App.Vector(0, 0, 41), App.Rotation())
sketch12.addGeometry([
    Part.LineSegment(App.Vector(-36.9, 60.5, 0), App.Vector(-36.9, -21.8, 0)),
    Part.LineSegment(App.Vector(-36.9, -21.8, 0), App.Vector(-33.5, -21.8, 0)),
    Part.LineSegment(App.Vector(-33.5, -21.8, 0), App.Vector(-33.5, 60.5, 0)),
    Part.LineSegment(App.Vector(-33.5, 60.5, 0), App.Vector(-36.9, 60.5, 0)),
    Part.LineSegment(App.Vector(36.9, 60.5, 0), App.Vector(33.5, 60.5, 0)),
    Part.LineSegment(App.Vector(33.5, 60.5, 0), App.Vector(33.5, -21.8, 0)),
    Part.LineSegment(App.Vector(33.5, -21.8, 0), App.Vector(36.9, -21.8, 0)),
    Part.LineSegment(App.Vector(36.9, -21.8, 0), App.Vector(36.9, 60.5, 0)),
], False)
sketch12.addConstraint([
    Sketcher.Constraint("Coincident", 0, 2, 1, 1),
    Sketcher.Constraint("Coincident", 1, 2, 2, 1),
    Sketcher.Constraint("Coincident", 2, 2, 3, 1),
    Sketcher.Constraint("Coincident", 3, 2, 0, 1),
    Sketcher.Constraint("Coincident", 4, 2, 5, 1),
    Sketcher.Constraint("Coincident", 5, 2, 6, 1),
    Sketcher.Constraint("Coincident", 6, 2, 7, 1),
    Sketcher.Constraint("Coincident", 7, 2, 4, 1),
    Sketcher.Constraint("Vertical", 0),
    Sketcher.Constraint("Horizontal", 1),
    Sketcher.Constraint("Vertical", 2),
    Sketcher.Constraint("Horizontal", 3),
    Sketcher.Constraint("Horizontal", 4),
    Sketcher.Constraint("Vertical", 5),
    Sketcher.Constraint("Horizontal", 6),
    Sketcher.Constraint("Vertical", 7),
    Sketcher.Constraint("Symmetric", 2, 2, 4, 2, -2),
    Sketcher.Constraint("Symmetric", 0, 2, 6, 2, -2),
    Sketcher.Constraint("DistanceX", 1, 1, 1, 2, Q("3.4 mm")),
    Sketcher.Constraint("DistanceX", 2, 2, 4, 2, Q("67 mm")),
    Sketcher.Constraint("DistanceY", 0, 2, 0, 1, Q("82.2938 mm")),
    Sketcher.Constraint("DistanceY", 0, 2, -1, 1, Q("21.7906 mm")),
])
pad7 = doc.addObject("PartDesign::Pad", "Pad006")
body.addObject(pad7)
pad7.Profile = sketch12
pad7.Length = 2.4
pad7.Reversed = True

sketch13 = doc.addObject("Sketcher::SketchObject", "Sketch012")
body.addObject(sketch13)
sketch13.AttachmentSupport = (doc.XY_Plane, [""])
sketch13.MapMode = "FlatFace"
sketch13.AttachmentOffset = App.Placement(App.Vector(0, 0, 41), App.Rotation())
sketch13.addGeometry([
    Part.LineSegment(App.Vector(-3.5, 24.6, 0), App.Vector(3.5, 24.6, 0)),
    Part.LineSegment(App.Vector(3.5, 24.6, 0), App.Vector(3.5, 31.6, 0)),
    Part.LineSegment(App.Vector(3.5, 31.6, 0), App.Vector(-3.5, 31.6, 0)),
    Part.LineSegment(App.Vector(-3.5, 31.6, 0), App.Vector(-3.5, 24.6, 0)),
    Part.LineSegment(App.Vector(-2, 26.5, 0), App.Vector(-2, 29.7, 0)),
    Part.LineSegment(App.Vector(-2, 29.7, 0), App.Vector(2, 29.7, 0)),
    Part.LineSegment(App.Vector(2, 29.7, 0), App.Vector(2, 26.5, 0)),
    Part.LineSegment(App.Vector(2, 26.5, 0), App.Vector(-2, 26.5, 0)),
], False)
sketch13.addConstraint([
    Sketcher.Constraint("Coincident", 0, 2, 1, 1),
    Sketcher.Constraint("Coincident", 1, 2, 2, 1),
    Sketcher.Constraint("Coincident", 2, 2, 3, 1),
    Sketcher.Constraint("Coincident", 3, 2, 0, 1),
    Sketcher.Constraint("Coincident", 4, 2, 5, 1),
    Sketcher.Constraint("Coincident", 5, 2, 6, 1),
    Sketcher.Constraint("Coincident", 6, 2, 7, 1),
    Sketcher.Constraint("Coincident", 7, 2, 4, 1),
    Sketcher.Constraint("Horizontal", 0),
    Sketcher.Constraint("Vertical", 1),
    Sketcher.Constraint("Horizontal", 2),
    Sketcher.Constraint("Vertical", 3),
    Sketcher.Constraint("Vertical", 4),
    Sketcher.Constraint("Horizontal", 5),
    Sketcher.Constraint("Vertical", 6),
    Sketcher.Constraint("Horizontal", 7),
    Sketcher.Constraint("Equal", 2, 1),
    Sketcher.Constraint("DistanceX", 0, 1, 0, 2, Q("7 mm")),
    Sketcher.Constraint("DistanceX", 5, 1, 5, 2, Q("4 mm")),
    Sketcher.Constraint("DistanceY", 4, 1, 4, 2, Q("3.2 mm")),
    Sketcher.Constraint("DistanceX", 4, 2, -1, 1, Q("2 mm")),
    Sketcher.Constraint("DistanceX", -1, 1, 0, 2, Q("3.5 mm")),
    Sketcher.Constraint("DistanceY", 4, 2, 2, 2, Q("1.9 mm")),
    Sketcher.Constraint("DistanceY", -1, 1, 0, 2, Q("24.5512 mm")),
])
pocket6 = doc.addObject("PartDesign::Pocket", "Pocket005")
body.addObject(pocket6)
pocket6.Profile = sketch13
pocket6.Length = 10

sketch14 = doc.addObject("Sketcher::SketchObject", "Sketch013")
body.addObject(sketch14)
sketch14.AttachmentSupport = (doc.YZ_Plane, [""])
sketch14.MapMode = "FlatFace"
sketch14.AttachmentOffset = App.Placement(App.Vector(0, 0, -45.4), App.Rotation())
sketch14.addGeometry([
    Part.LineSegment(App.Vector(-82, 32, 0), App.Vector(-22, 32, 0)),
    Part.LineSegment(App.Vector(-22, 32, 0), App.Vector(-82, 39, 0)),
    Part.LineSegment(App.Vector(-82, 39, 0), App.Vector(-82, 32, 0)),
], False)
sketch14.addConstraint([
    Sketcher.Constraint("Coincident", 0, 2, 1, 1),
    Sketcher.Constraint("Coincident", 1, 2, 2, 1),
    Sketcher.Constraint("Coincident", 2, 2, 0, 1),
    Sketcher.Constraint("Horizontal", 0),
    Sketcher.Constraint("Vertical", 2),
    Sketcher.Constraint("DistanceX", 0, 1, 0, 2, Q("60.36 mm")),
    Sketcher.Constraint("DistanceY", -1, 1, 1, 2, Q("38.6 mm")),
    Sketcher.Constraint("DistanceY", 2, 2, 2, 1, Q("7.0974 mm")),
    Sketcher.Constraint("DistanceX", 0, 2, -1, 1, Q("21.7906 mm")),
])
pad8 = doc.addObject("PartDesign::Pad", "Pad007")
body.addObject(pad8)
pad8.Profile = sketch14
pad8.Type = "TwoLengths"
pad8.Length = 12
pad8.Length2 = 2.4

sketch15 = doc.addObject("Sketcher::SketchObject", "Sketch014")
body.addObject(sketch15)
sketch15.AttachmentSupport = (doc.YZ_Plane, [""])
sketch15.MapMode = "FlatFace"
sketch15.AttachmentOffset = App.Placement(App.Vector(0, 0, 45.4), App.Rotation())
sketch15.addGeometry([
    Part.LineSegment(App.Vector(-22, 32, 0), App.Vector(-82, 32, 0)),
    Part.LineSegment(App.Vector(-82, 32, 0), App.Vector(-82, 39, 0)),
    Part.LineSegment(App.Vector(-82, 39, 0), App.Vector(-22, 32, 0)),
], False)
sketch15.addConstraint([
    Sketcher.Constraint("Coincident", 0, 2, 1, 1),
    Sketcher.Constraint("Coincident", 1, 2, 2, 1),
    Sketcher.Constraint("Coincident", 2, 2, 0, 1),
    Sketcher.Constraint("Horizontal", 0),
    Sketcher.Constraint("Vertical", 1),
    Sketcher.Constraint("DistanceX", 0, 2, 0, 1, Q("60.36 mm")),
    Sketcher.Constraint("DistanceY", -1, 1, 1, 2, Q("38.6 mm")),
    Sketcher.Constraint("DistanceY", 1, 1, 1, 2, Q("7.0974 mm")),
    Sketcher.Constraint("DistanceX", 0, 2, -1, 1, Q("82.1506 mm")),
])
pad9 = doc.addObject("PartDesign::Pad", "Pad008")
body.addObject(pad9)
pad9.Profile = sketch15
pad9.Type = "TwoLengths"
pad9.Length = 12
pad9.Length2 = 5
pad9.Reversed = True

doc.recompute()
